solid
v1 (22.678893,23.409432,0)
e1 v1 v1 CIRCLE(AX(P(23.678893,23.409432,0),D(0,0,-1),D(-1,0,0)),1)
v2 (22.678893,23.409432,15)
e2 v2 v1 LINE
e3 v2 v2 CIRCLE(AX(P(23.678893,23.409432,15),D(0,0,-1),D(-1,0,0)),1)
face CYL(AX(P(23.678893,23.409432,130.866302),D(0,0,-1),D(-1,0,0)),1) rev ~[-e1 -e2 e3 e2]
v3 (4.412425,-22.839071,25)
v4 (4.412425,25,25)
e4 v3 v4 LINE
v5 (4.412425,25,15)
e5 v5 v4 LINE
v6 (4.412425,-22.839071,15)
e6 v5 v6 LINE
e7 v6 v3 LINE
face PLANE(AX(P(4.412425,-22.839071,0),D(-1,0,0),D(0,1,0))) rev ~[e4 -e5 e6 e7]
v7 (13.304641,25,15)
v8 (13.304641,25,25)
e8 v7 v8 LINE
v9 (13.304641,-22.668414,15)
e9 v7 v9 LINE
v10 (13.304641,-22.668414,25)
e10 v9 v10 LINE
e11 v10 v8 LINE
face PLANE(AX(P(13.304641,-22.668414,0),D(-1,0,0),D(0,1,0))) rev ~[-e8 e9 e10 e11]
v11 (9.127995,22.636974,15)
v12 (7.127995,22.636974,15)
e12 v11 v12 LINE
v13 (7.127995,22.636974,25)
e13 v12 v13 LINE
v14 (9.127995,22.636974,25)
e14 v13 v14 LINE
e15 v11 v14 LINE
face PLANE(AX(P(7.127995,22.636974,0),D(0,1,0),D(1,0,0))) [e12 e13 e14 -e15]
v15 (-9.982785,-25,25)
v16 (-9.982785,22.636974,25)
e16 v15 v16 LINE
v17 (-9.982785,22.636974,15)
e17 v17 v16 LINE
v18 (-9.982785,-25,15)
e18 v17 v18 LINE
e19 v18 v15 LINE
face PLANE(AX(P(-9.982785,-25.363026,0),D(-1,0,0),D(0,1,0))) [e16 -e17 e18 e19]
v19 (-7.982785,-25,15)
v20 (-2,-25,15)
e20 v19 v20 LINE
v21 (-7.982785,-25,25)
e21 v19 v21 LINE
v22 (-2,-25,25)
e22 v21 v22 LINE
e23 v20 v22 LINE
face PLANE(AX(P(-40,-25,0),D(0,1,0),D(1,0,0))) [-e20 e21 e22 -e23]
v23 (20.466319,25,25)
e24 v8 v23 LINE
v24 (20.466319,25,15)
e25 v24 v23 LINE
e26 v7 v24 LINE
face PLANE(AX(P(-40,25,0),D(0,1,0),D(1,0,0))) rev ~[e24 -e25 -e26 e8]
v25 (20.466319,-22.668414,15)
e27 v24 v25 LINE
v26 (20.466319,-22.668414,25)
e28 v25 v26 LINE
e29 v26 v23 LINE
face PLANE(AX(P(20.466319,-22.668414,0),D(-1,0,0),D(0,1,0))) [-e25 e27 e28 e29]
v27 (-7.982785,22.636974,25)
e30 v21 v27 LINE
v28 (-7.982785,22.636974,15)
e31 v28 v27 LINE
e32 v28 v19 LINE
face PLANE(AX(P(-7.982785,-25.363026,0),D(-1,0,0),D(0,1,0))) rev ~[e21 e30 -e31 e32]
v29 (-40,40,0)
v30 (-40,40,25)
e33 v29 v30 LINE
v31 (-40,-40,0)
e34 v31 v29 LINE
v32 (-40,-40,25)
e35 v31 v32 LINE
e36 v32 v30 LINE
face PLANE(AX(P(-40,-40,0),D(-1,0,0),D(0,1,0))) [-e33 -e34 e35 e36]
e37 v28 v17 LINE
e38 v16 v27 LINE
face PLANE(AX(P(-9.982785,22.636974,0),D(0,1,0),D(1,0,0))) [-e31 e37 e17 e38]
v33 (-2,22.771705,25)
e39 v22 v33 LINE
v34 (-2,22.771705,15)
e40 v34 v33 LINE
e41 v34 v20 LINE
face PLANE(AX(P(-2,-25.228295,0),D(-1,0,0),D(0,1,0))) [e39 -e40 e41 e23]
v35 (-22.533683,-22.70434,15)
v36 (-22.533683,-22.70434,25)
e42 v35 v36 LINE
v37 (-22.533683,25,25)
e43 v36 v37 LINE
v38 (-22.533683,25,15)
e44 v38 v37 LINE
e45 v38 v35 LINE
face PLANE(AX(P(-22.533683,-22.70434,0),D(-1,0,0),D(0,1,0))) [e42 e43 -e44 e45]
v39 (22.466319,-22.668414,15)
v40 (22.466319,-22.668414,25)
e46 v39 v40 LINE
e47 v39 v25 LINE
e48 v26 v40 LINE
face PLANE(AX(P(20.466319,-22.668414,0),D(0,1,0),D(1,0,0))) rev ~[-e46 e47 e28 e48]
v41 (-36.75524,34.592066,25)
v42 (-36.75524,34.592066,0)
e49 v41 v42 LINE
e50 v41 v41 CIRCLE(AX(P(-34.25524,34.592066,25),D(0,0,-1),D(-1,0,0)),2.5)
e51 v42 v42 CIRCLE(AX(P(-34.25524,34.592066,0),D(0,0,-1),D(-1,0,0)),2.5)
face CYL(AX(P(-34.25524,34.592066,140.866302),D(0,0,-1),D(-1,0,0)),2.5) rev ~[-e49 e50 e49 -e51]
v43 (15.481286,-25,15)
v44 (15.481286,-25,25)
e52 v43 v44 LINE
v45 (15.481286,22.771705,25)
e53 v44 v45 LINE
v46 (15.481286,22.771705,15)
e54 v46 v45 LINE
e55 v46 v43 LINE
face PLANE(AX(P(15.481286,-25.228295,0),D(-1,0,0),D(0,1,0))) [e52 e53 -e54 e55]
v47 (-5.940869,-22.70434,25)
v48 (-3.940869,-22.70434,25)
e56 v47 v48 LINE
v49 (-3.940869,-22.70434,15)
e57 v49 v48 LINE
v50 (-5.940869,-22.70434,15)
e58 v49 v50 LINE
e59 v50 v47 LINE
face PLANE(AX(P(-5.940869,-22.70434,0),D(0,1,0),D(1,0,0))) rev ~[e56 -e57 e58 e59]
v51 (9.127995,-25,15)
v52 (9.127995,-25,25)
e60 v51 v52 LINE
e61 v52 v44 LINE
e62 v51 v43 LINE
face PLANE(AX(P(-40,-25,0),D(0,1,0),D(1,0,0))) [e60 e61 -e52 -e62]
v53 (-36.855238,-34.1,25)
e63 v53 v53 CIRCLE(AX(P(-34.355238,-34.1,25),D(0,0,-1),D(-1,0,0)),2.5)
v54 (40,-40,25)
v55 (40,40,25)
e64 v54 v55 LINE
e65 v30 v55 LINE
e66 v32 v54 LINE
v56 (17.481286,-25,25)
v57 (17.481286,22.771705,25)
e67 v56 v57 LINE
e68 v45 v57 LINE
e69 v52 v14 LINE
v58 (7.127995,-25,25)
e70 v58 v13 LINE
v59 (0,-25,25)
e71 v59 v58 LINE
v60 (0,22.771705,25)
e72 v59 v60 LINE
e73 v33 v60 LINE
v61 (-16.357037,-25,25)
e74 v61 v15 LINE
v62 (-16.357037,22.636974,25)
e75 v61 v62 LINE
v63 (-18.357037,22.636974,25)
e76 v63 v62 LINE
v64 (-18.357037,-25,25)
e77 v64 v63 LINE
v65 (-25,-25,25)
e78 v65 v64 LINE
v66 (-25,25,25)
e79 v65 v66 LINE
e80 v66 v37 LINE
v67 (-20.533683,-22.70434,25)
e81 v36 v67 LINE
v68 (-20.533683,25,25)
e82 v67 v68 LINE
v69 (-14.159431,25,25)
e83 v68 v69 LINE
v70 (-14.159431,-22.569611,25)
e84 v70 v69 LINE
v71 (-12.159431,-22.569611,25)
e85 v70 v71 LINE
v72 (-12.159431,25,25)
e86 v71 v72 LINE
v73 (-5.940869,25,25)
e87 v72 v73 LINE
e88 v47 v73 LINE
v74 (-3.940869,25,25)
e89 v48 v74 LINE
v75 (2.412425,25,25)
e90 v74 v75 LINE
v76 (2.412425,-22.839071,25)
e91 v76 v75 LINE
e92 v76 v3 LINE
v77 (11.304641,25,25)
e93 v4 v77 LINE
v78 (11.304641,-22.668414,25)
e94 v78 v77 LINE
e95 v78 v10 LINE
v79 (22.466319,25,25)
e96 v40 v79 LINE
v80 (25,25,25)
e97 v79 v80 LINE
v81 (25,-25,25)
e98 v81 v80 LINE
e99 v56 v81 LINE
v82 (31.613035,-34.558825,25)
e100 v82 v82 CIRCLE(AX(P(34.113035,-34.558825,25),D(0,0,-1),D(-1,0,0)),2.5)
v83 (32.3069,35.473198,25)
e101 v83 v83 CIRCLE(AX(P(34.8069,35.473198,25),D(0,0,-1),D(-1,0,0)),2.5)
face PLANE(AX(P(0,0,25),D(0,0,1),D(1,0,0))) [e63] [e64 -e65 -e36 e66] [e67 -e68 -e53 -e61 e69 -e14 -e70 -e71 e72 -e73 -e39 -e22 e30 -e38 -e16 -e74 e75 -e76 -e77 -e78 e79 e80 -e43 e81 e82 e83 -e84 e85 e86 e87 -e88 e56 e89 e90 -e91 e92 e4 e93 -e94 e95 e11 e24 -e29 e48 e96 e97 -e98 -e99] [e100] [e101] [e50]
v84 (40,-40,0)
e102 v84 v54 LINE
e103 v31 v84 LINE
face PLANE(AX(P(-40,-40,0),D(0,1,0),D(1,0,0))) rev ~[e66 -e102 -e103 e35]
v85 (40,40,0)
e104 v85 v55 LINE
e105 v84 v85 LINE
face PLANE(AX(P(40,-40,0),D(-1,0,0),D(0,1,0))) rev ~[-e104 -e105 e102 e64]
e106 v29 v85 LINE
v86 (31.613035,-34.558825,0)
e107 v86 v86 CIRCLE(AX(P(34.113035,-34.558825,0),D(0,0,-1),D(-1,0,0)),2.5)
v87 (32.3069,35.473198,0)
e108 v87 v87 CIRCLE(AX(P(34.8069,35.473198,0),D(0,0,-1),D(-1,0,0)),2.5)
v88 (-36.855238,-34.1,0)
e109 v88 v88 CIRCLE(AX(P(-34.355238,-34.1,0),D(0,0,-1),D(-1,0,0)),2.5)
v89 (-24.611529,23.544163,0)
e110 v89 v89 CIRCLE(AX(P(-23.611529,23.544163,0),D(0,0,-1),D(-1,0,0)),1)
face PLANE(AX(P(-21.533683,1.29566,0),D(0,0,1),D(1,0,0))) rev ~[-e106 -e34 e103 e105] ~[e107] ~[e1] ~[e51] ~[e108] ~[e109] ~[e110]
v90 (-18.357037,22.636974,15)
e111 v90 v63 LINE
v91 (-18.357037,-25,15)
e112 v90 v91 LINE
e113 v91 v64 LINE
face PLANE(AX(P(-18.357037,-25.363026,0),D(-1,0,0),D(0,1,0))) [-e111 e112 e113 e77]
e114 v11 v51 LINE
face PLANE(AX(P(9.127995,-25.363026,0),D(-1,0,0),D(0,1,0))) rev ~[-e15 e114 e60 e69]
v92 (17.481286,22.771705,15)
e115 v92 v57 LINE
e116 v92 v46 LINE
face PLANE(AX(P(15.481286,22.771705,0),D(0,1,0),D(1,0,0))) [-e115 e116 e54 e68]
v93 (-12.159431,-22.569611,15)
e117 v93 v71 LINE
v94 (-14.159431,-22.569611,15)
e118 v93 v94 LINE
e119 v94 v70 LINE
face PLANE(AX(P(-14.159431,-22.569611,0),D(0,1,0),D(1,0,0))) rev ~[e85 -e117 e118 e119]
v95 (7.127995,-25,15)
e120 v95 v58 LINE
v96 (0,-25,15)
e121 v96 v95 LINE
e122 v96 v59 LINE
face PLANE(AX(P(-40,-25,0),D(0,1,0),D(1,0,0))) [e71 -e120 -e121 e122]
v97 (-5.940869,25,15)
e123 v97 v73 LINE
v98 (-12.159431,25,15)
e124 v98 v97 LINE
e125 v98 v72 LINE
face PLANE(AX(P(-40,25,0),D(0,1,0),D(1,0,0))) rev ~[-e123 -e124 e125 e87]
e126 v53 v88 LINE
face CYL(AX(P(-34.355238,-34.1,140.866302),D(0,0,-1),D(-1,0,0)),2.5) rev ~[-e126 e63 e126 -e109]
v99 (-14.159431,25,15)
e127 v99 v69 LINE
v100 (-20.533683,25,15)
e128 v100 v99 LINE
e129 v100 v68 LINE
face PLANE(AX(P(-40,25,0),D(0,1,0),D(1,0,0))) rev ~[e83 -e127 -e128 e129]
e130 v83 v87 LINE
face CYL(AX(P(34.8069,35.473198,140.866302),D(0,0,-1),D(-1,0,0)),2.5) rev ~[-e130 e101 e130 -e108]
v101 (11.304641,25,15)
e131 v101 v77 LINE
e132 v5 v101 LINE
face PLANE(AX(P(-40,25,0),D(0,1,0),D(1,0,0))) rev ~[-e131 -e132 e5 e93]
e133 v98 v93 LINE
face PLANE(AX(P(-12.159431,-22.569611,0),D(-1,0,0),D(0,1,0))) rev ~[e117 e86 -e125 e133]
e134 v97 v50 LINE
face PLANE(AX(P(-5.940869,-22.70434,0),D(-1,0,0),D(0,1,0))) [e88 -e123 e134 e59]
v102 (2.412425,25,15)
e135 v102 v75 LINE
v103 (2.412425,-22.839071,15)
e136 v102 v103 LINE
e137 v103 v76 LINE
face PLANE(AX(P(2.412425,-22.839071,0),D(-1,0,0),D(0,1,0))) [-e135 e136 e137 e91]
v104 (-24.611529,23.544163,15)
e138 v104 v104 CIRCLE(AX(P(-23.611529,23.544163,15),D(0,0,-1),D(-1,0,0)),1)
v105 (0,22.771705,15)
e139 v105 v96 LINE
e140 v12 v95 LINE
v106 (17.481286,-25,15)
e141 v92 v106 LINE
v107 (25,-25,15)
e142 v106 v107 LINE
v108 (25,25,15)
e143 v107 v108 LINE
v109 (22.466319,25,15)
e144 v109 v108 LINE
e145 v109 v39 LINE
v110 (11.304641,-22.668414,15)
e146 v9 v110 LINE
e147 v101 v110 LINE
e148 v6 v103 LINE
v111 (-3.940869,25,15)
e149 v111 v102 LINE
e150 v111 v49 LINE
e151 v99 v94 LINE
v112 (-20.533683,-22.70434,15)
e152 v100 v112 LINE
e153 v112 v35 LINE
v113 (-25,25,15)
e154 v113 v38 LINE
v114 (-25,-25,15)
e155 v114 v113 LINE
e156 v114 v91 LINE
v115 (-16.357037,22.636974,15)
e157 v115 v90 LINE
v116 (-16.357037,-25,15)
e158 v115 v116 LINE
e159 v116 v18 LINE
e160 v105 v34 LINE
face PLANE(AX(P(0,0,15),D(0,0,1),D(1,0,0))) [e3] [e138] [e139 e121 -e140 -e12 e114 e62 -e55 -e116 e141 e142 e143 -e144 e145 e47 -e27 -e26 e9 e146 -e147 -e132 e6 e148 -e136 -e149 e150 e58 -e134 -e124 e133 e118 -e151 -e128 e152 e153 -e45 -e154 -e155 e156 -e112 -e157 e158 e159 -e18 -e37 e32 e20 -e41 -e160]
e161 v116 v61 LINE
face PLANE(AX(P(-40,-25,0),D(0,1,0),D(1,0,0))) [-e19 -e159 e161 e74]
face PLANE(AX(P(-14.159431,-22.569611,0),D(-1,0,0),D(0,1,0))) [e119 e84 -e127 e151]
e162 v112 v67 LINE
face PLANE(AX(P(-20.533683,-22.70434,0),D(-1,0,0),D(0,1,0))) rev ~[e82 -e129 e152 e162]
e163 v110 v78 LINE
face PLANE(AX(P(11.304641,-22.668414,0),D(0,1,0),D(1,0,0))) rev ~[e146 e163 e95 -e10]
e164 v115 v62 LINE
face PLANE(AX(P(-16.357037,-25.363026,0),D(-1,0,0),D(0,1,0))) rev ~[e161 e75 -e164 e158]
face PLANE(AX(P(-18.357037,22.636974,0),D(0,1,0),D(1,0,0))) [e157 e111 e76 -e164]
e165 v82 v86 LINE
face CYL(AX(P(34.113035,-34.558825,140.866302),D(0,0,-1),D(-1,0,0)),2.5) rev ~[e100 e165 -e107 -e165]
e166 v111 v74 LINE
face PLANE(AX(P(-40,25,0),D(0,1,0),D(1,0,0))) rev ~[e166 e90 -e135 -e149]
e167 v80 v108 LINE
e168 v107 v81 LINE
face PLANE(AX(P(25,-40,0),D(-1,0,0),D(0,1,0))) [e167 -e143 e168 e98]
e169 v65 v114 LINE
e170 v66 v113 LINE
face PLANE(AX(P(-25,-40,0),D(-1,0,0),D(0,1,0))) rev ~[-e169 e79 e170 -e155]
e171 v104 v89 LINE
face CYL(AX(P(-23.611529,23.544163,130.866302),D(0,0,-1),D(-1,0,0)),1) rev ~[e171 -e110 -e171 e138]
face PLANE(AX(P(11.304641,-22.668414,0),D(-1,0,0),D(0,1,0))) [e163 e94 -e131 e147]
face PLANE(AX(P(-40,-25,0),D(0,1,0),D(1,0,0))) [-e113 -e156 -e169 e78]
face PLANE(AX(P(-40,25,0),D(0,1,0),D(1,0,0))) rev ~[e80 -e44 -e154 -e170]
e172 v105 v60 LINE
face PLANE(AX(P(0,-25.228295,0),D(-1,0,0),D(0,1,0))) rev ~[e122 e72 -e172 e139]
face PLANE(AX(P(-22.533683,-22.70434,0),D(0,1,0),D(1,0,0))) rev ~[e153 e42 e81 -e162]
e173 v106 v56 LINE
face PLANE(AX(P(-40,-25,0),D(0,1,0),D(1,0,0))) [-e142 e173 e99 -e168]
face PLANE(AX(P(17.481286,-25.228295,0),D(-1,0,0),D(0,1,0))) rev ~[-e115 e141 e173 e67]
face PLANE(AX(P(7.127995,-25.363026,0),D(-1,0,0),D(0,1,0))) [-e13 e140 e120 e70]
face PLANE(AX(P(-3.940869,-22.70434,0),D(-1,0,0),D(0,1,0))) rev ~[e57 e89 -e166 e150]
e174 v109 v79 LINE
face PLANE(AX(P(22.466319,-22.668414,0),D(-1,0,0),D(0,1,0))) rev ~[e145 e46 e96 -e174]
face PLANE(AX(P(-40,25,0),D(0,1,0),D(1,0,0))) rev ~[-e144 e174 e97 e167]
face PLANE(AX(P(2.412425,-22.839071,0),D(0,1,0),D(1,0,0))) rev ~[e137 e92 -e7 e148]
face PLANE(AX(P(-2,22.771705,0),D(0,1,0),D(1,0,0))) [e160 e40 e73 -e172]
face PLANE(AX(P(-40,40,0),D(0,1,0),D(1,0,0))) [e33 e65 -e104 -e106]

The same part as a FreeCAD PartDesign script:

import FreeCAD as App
import Part
import Sketcher


def faces_at(feature, points):
    """Names of the faces that lie closest to the given points."""
    faces = feature.Shape.Faces
    near = lambda p: min(range(len(faces)), key=lambda i: faces[i].distToShape(Part.Vertex(*p))[0])
    return sorted({f"Face{near(p) + 1}" for p in points})


def add_polygon(sketch, points):
    """Adds a closed chain of lines whose ends are joined by coincident constraints."""
    first, n = sketch.GeometryCount, len(points)
    for a, b in zip(points, points[1:] + points[:1]):
        sketch.addGeometry(Part.LineSegment(App.Vector(*a, 0), App.Vector(*b, 0)), False)
    for i in range(n):
        sketch.addConstraint(Sketcher.Constraint("Coincident", first + i, 2, first + (i + 1) % n, 1))

doc = App.newDocument("Part")
body = doc.addObject("PartDesign::Body", "Body")

# Sketch on XY plane
sketch1 = body.newObject("Sketcher::SketchObject", "Sketch")
sketch1.AttachmentSupport = (doc.getObject("XY_Plane"), [""])
sketch1.MapMode = "FlatFace"
add_polygon(sketch1, [(-40, 40), (-40, -40), (40, -40), (40, 40)])  # lines 0-3
sketch1.addConstraint([
    Sketcher.Constraint("Vertical", 0),
    Sketcher.Constraint("Horizontal", 1),
    Sketcher.Constraint("Vertical", 2),
    Sketcher.Constraint("Horizontal", 3),
    Sketcher.Constraint("Symmetric", 0, 2, 2, 2, -1, 1),
    Sketcher.Constraint("Equal", 3, 0),
    Sketcher.Constraint("DistanceX", 1, 1, 1, 2, 80.0),
])
pad1 = body.newObject("PartDesign::Pad", "Pad")
pad1.Profile = sketch1
pad1.Length = 25
doc.recompute()

thickness = body.newObject("PartDesign::Thickness", "Thickness")
thickness.Base = (pad1, faces_at(pad1, [(0, 0, 25)]))
thickness.Value = 15
thickness.Reversed = True
thickness.Join = "Arc"

# Sketch on XY plane
sketch2 = body.newObject("Sketcher::SketchObject", "Sketch001")
sketch2.AttachmentSupport = (doc.getObject("XY_Plane"), [""])
sketch2.MapMode = "FlatFace"
add_polygon(sketch2, [(-22.5, 25.3), (-22.5, -22.7), (-20.5, -22.7), (-20.5, 25.3)])  # lines 0-3
add_polygon(sketch2, [(-18.4, 22.6), (-18.4, -25.4), (-16.4, -25.4), (-16.4, 22.6)])  # lines 4-7
add_polygon(sketch2, [(-14.2, 25.4), (-14.2, -22.6), (-12.2, -22.6), (-12.2, 25.4)])  # lines 8-11
add_polygon(sketch2, [(-10, 22.6), (-10, -25.4), (-8, -25.4), (-8, 22.6)])  # lines 12-15
add_polygon(sketch2, [(-5.9, 25.3), (-5.9, -22.7), (-3.9, -22.7), (-3.9, 25.3)])  # lines 16-19
add_polygon(sketch2, [(-2, 22.8), (-2, -25.2), (0, -25.2), (0, 22.8)])  # lines 20-23
add_polygon(sketch2, [(2.4, 25.2), (2.4, -22.8), (4.4, -22.8), (4.4, 25.2)])  # lines 24-27
add_polygon(sketch2, [(7.1, 22.6), (7.1, -25.4), (9.1, -25.4), (9.1, 22.6)])  # lines 28-31
add_polygon(sketch2, [(11.3, 25.3), (11.3, -22.7), (13.3, -22.7), (13.3, 25.3)])  # lines 32-35
add_polygon(sketch2, [(15.5, 22.8), (15.5, -25.2), (17.5, -25.2), (17.5, 22.8)])  # lines 36-39
add_polygon(sketch2, [(20.5, 25.3), (20.5, -22.7), (22.5, -22.7), (22.5, 25.3)])  # lines 40-43
sketch2.addConstraint([
    Sketcher.Constraint("Vertical", 0),
    Sketcher.Constraint("Horizontal", 1),
    Sketcher.Constraint("Vertical", 2),
    Sketcher.Constraint("Horizontal", 3),
    Sketcher.Constraint("Vertical", 4),
    Sketcher.Constraint("Horizontal", 5),
    Sketcher.Constraint("Vertical", 6),
    Sketcher.Constraint("Horizontal", 7),
    Sketcher.Constraint("Vertical", 8),
    Sketcher.Constraint("Horizontal", 9),
    Sketcher.Constraint("Vertical", 10),
    Sketcher.Constraint("Horizontal", 11),
    Sketcher.Constraint("Vertical", 12),
    Sketcher.Constraint("Horizontal", 13),
    Sketcher.Constraint("Vertical", 14),
    Sketcher.Constraint("Horizontal", 15),
    Sketcher.Constraint("Vertical", 16),
    Sketcher.Constraint("Horizontal", 17),
    Sketcher.Constraint("Vertical", 18),
    Sketcher.Constraint("Horizontal", 19),
    Sketcher.Constraint("Vertical", 20),
    Sketcher.Constraint("Horizontal", 21),
    Sketcher.Constraint("Vertical", 22),
    Sketcher.Constraint("Horizontal", 23),
    Sketcher.Constraint("Vertical", 24),
    Sketcher.Constraint("Horizontal", 25),
    Sketcher.Constraint("Vertical", 26),
    Sketcher.Constraint("Horizontal", 27),
    Sketcher.Constraint("Vertical", 28),
    Sketcher.Constraint("Horizontal", 29),
    Sketcher.Constraint("Vertical", 30),
    Sketcher.Constraint("Horizontal", 31),
    Sketcher.Constraint("Vertical", 32),
    Sketcher.Constraint("Horizontal", 33),
    Sketcher.Constraint("Vertical", 34),
    Sketcher.Constraint("Horizontal", 35),
    Sketcher.Constraint("Vertical", 36),
    Sketcher.Constraint("Horizontal", 37),
    Sketcher.Constraint("Vertical", 38),
    Sketcher.Constraint("Horizontal", 39),
    Sketcher.Constraint("Vertical", 40),
    Sketcher.Constraint("Horizontal", 41),
    Sketcher.Constraint("Vertical", 42),
    Sketcher.Constraint("Horizontal", 43),
    Sketcher.Constraint("PointOnObject", 21, 2, -2),
    Sketcher.Constraint("Horizontal", 5, 2, 12, 2),
    Sketcher.Constraint("Horizontal", 7, 2, 14, 2),
    Sketcher.Constraint("Horizontal", 1, 2, 16, 2),
    Sketcher.Constraint("Horizontal", 3, 2, 18, 2),
    Sketcher.Constraint("Horizontal", 13, 2, 28, 2),
    Sketcher.Constraint("Horizontal", 15, 2, 30, 2),
    Sketcher.Constraint("Horizontal", 21, 2, 36, 2),
    Sketcher.Constraint("Horizontal", 23, 2, 38, 2),
    Sketcher.Constraint("Horizontal", 33, 2, 40, 2),
    Sketcher.Constraint("Horizontal", 35, 2, 42, 2),
    Sketcher.Constraint("Equal", 3, 5),
    Sketcher.Constraint("Equal", 7, 9),
    Sketcher.Constraint("Equal", 11, 13),
    Sketcher.Constraint("Equal", 15, 17),
    Sketcher.Constraint("Equal", 19, 21),
    Sketcher.Constraint("Equal", 23, 25),
    Sketcher.Constraint("Equal", 27, 29),
    Sketcher.Constraint("Equal", 31, 33),
    Sketcher.Constraint("Equal", 35, 37),
    Sketcher.Constraint("Equal", 39, 41),
    Sketcher.Constraint("Equal", 2, 4),
    Sketcher.Constraint("Equal", 6, 8),
    Sketcher.Constraint("Equal", 18, 20),
    Sketcher.Constraint("Equal", 22, 24),
    Sketcher.Constraint("Equal", 30, 32),
    Sketcher.Constraint("DistanceX", 1, 1, 1, 2, 2.0),
    Sketcher.Constraint("DistanceY", 0, 2, 0, 1, 48.0),
    Sketcher.Constraint("DistanceY", 0, 2, -1, 1, 22.70434),
    Sketcher.Constraint("DistanceX", 8, 2, -1, 1, 14.159431),
    Sketcher.Constraint("DistanceY", 8, 2, -1, 1, 22.569611),
    Sketcher.Constraint("DistanceX", 16, 2, -1, 1, 5.940869),
    Sketcher.Constraint("DistanceY", 24, 2, -1, 1, 22.839071),
    Sketcher.Constraint("DistanceX", -1, 1, 32, 2, 11.304641),
    Sketcher.Constraint("DistanceX", -1, 1, 40, 2, 20.466319),
    Sketcher.Constraint("DistanceX", 5, 2, 12, 2, 6.374252),
    Sketcher.Constraint("DistanceY", 13, 2, 20, 2, 0.134731),
    Sketcher.Constraint("DistanceX", 13, 2, 24, 2, 10.39521),
    Sketcher.Constraint("DistanceX", 25, 2, 28, 2, 2.71557),
    Sketcher.Constraint("DistanceY", 21, 2, 32, 2, 2.559881),
    Sketcher.Constraint("DistanceX", 29, 2, 36, 2, 6.353291),
    Sketcher.Constraint("DistanceX", 0, 2, -1, 1, 22.533683),
    Sketcher.Constraint("DistanceX", 4, 2, -1, 1, 18.357037),
    Sketcher.Constraint("DistanceY", 4, 2, -1, 1, 25.363026),
])
pad2 = body.newObject("PartDesign::Pad", "Pad001")
pad2.Profile = sketch2
pad2.Length = 25

# Sketch on XY plane
sketch3 = body.newObject("Sketcher::SketchObject", "Sketch002")
sketch3.AttachmentSupport = (doc.getObject("XY_Plane"), [""])
sketch3.MapMode = "FlatFace"
sketch3.AttachmentOffset = App.Placement(App.Vector(0, 0, 15), App.Rotation())
sketch3.addGeometry([
    Part.Circle(App.Vector(-23.6, 23.5, 0), App.Vector(0, 0, 1), 1),
    Part.Circle(App.Vector(23.7, 23.4, 0), App.Vector(0, 0, 1), 1),
], False)
sketch3.addConstraint([
    Sketcher.Constraint("Equal", 0, 1),
    Sketcher.Constraint("Diameter", 0, 2.0),
    Sketcher.Constraint("DistanceX", 0, 3, -1, 1, 23.611529),
    Sketcher.Constraint("DistanceY", -1, 1, 1, 3, 23.409432),
    Sketcher.Constraint("DistanceY", 1, 3, 0, 3, 0.134731),
    Sketcher.Constraint("DistanceX", -1, 1, 1, 3, 23.678893),
])
doc.recompute()
hole = body.newObject("PartDesign::Hole", "Hole")
hole.Profile = sketch3
hole.ThreadType = "None"
hole.Diameter = 2
hole.DepthType = "ThroughAll"

# Sketch on XY plane
sketch4 = body.newObject("Sketcher::SketchObject", "Sketch003")
sketch4.AttachmentSupport = (doc.getObject("XY_Plane"), [""])
sketch4.MapMode = "FlatFace"
sketch4.AttachmentOffset = App.Placement(App.Vector(0, 0, 25), App.Rotation())
sketch4.addGeometry([
    Part.Circle(App.Vector(-34.3, 34.6, 0), App.Vector(0, 0, 1), 2.5),
    Part.Circle(App.Vector(34.8, 35.5, 0), App.Vector(0, 0, 1), 2.5),
    Part.Circle(App.Vector(34.1, -34.6, 0), App.Vector(0, 0, 1), 2.5),
    Part.Circle(App.Vector(-34.4, -34.1, 0), App.Vector(0, 0, 1), 2.5),
], False)
sketch4.addConstraint([
    Sketcher.Constraint("Equal", 0, 1),
    Sketcher.Constraint("Equal", 1, 2),
    Sketcher.Constraint("Equal", 2, 3),
    Sketcher.Constraint("Diameter", 0, 5.0),
    Sketcher.Constraint("DistanceY", 3, 3, -1, 1, 34.1),
    Sketcher.Constraint("DistanceX", -1, 1, 1, 3, 34.8069),
    Sketcher.Constraint("DistanceX", 0, 3, -1, 1, 34.25524),
    Sketcher.Constraint("DistanceY", 0, 3, 1, 3, 0.881132),
    Sketcher.Constraint("DistanceY", 2, 3, 0, 3, 69.150891),
    Sketcher.Constraint("DistanceX", 3, 3, 1, 3, 69.162138),
    Sketcher.Constraint("DistanceY", -1, 1, 0, 3, 34.592066),
    Sketcher.Constraint("DistanceX", -1, 1, 2, 3, 34.113035),
])
doc.recompute()
hole2 = body.newObject("PartDesign::Hole", "Hole001")
hole2.Profile = sketch4
hole2.ThreadType = "None"
hole2.Diameter = 5
hole2.DepthType = "ThroughAll"

doc.recompute()
